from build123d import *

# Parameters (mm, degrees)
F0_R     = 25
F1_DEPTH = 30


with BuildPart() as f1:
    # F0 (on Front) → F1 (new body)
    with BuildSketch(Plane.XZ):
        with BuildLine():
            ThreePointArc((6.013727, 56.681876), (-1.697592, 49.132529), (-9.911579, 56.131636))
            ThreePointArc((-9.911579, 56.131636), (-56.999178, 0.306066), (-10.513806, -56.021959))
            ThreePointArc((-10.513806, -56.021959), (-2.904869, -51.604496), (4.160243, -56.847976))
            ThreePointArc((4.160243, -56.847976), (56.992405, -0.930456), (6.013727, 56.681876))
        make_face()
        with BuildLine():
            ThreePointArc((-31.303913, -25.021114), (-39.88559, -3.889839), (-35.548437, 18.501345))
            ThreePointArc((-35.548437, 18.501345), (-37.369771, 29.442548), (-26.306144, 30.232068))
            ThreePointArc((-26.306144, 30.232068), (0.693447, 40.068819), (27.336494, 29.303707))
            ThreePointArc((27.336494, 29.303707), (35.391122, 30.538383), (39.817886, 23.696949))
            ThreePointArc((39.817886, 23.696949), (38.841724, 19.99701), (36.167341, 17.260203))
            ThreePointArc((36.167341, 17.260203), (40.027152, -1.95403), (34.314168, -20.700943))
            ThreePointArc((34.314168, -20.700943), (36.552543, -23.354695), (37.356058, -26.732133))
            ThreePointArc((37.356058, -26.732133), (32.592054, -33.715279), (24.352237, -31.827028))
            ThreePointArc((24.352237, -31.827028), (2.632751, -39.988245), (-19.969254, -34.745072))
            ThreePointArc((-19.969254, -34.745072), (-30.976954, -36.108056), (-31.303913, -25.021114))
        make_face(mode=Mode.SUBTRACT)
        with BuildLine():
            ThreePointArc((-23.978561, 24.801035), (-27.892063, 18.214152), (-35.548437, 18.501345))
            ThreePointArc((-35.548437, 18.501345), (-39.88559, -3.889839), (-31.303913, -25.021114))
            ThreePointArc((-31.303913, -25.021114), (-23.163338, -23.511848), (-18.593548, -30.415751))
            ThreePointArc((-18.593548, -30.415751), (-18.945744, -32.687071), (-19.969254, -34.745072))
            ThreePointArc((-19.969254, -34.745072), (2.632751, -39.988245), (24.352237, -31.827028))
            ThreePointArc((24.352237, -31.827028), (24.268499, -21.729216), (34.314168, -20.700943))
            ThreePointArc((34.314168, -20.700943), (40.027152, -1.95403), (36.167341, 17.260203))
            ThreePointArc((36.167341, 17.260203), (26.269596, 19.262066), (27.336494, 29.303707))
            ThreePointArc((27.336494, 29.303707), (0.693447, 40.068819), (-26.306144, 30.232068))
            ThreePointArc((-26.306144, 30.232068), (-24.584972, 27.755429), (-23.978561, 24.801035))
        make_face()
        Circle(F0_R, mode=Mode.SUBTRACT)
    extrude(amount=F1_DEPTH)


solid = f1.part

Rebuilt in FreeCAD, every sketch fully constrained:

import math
import FreeCAD as App
import Part
import Sketcher

doc = App.newDocument("Part")
body = doc.addObject("PartDesign::Body", "Body")

sketch1 = body.newObject("Sketcher::SketchObject", "Sketch")
sketch1.AttachmentSupport = (doc.getObject("XZ_Plane"), [""])
sketch1.MapMode = "FlatFace"
sketch1.addGeometry(Part.ArcOfCircle(Part.Circle(App.Vector(-2, 57.1, 0), App.Vector(0, 0, 1), 8), math.radians(-173), math.radians(-3)), False)
sketch1.addGeometry(Part.ArcOfCircle(Part.Circle(App.Vector(0, 0, 0), App.Vector(0, 0, 1), 57), math.radians(100), math.radians(259)), False)
sketch1.addGeometry(Part.ArcOfCircle(Part.Circle(App.Vector(-3.4, -59.6, 0), App.Vector(0, 0, 1), 8), math.radians(20), math.radians(153)), False)
sketch1.addGeometry(Part.ArcOfCircle(Part.Circle(App.Vector(0, 0, 0), App.Vector(0, 0, 1), 57), math.radians(-86), math.radians(84)), False)
sketch1.addGeometry(Part.ArcOfCircle(Part.Circle(App.Vector(-26.1, -30.4, 0), App.Vector(0, 0, 1), 7.5), math.radians(134), math.radians(325)), False)
sketch1.addGeometry(Part.ArcOfCircle(Part.Circle(App.Vector(-26.1, -30.4, 0), App.Vector(0, 0, 1), 7.5), math.radians(0), math.radians(134)), False)
sketch1.addGeometry(Part.ArcOfCircle(Part.Circle(App.Vector(-26.1, -30.4, 0), App.Vector(0, 0, 1), 7.5), math.radians(-35), math.radians(0)), False)
sketch1.addGeometry(Part.ArcOfCircle(Part.Circle(App.Vector(29.9, -26.7, 0), App.Vector(0, 0, 1), 7.5), math.radians(-137), math.radians(0)), False)
sketch1.addGeometry(Part.ArcOfCircle(Part.Circle(App.Vector(29.9, -26.7, 0), App.Vector(0, 0, 1), 7.5), math.radians(54), math.radians(223)), False)
sketch1.addGeometry(Part.ArcOfCircle(Part.Circle(App.Vector(29.9, -26.7, 0), App.Vector(0, 0, 1), 7.5), math.radians(0), math.radians(54)), False)
sketch1.addGeometry(Part.Circle(App.Vector(0, 0, 0), App.Vector(0, 0, 1), 25), False)
sketch1.addGeometry(Part.ArcOfCircle(Part.Circle(App.Vector(-31.5, 24.8, 0), App.Vector(0, 0, 1), 7.5), math.radians(46), math.radians(237)), False)
sketch1.addGeometry(Part.ArcOfCircle(Part.Circle(App.Vector(-31.5, 24.8, 0), App.Vector(0, 0, 1), 7.5), math.radians(0), math.radians(46)), False)
sketch1.addGeometry(Part.ArcOfCircle(Part.Circle(App.Vector(-31.5, 24.8, 0), App.Vector(0, 0, 1), 7.5), math.radians(-123), math.radians(0)), False)
sketch1.addGeometry(Part.ArcOfCircle(Part.Circle(App.Vector(32.3, 23.7, 0), App.Vector(0, 0, 1), 7.5), math.radians(-59), math.radians(0)), False)
sketch1.addGeometry(Part.ArcOfCircle(Part.Circle(App.Vector(32.3, 23.7, 0), App.Vector(0, 0, 1), 7.5), math.radians(132), math.radians(301)), False)
sketch1.addGeometry(Part.ArcOfCircle(Part.Circle(App.Vector(32.3, 23.7, 0), App.Vector(0, 0, 1), 7.5), math.radians(0), math.radians(132)), False)
sketch1.addConstraint(Sketcher.Constraint("Coincident", 0, 1, 1, 1))
sketch1.addConstraint(Sketcher.Constraint("Coincident", 1, 2, 2, 2))
sketch1.addConstraint(Sketcher.Constraint("Coincident", 2, 1, 3, 1))
sketch1.addConstraint(Sketcher.Constraint("Coincident", 3, 2, 0, 2))
sketch1.addConstraint(Sketcher.Constraint("Tangent", 4, 1, 5, 2))
sketch1.addConstraint(Sketcher.Constraint("Tangent", 5, 1, 6, 2))
sketch1.addConstraint(Sketcher.Constraint("Tangent", 6, 1, 4, 2))
sketch1.addConstraint(Sketcher.Constraint("Tangent", 7, 1, 8, 2))
sketch1.addConstraint(Sketcher.Constraint("Tangent", 8, 1, 9, 2))
sketch1.addConstraint(Sketcher.Constraint("Tangent", 9, 1, 7, 2))
sketch1.addConstraint(Sketcher.Constraint("Tangent", 11, 1, 12, 2))
sketch1.addConstraint(Sketcher.Constraint("Tangent", 12, 1, 13, 2))
sketch1.addConstraint(Sketcher.Constraint("Tangent", 13, 1, 11, 2))
sketch1.addConstraint(Sketcher.Constraint("Tangent", 14, 1, 15, 2))
sketch1.addConstraint(Sketcher.Constraint("Tangent", 15, 1, 16, 2))
sketch1.addConstraint(Sketcher.Constraint("Tangent", 16, 1, 14, 2))
sketch1.addConstraint(Sketcher.Constraint("Coincident", 1, 3, -1, 1))
sketch1.addConstraint(Sketcher.Constraint("Coincident", 3, 3, -1, 1))
sketch1.addConstraint(Sketcher.Constraint("Coincident", 10, 3, -1, 1))
sketch1.addConstraint(Sketcher.Constraint("Equal", 0, 2))
sketch1.addConstraint(Sketcher.Constraint("Equal", 1, 3))
sketch1.addConstraint(Sketcher.Constraint("Equal", 5, 7))
sketch1.addConstraint(Sketcher.Constraint("Equal", 9, 11))
sketch1.addConstraint(Sketcher.Constraint("Equal", 12, 14))
sketch1.addConstraint(Sketcher.Constraint("Horizontal", 6, 3, 5, 1))
sketch1.addConstraint(Sketcher.Constraint("Horizontal", 8, 3, 9, 1))
sketch1.addConstraint(Sketcher.Constraint("Horizontal", 13, 3, 12, 1))
sketch1.addConstraint(Sketcher.Constraint("Horizontal", 15, 3, 16, 1))
sketch1.addConstraint(Sketcher.Constraint("Diameter", 10, 50.0))
sketch1.addConstraint(Sketcher.Constraint("Radius", 0, 8.0))
sketch1.addConstraint(Sketcher.Constraint("Radius", 1, 57.0))
sketch1.addConstraint(Sketcher.Constraint("Radius", 4, 7.5))
sketch1.addConstraint(Sketcher.Constraint("DistanceY", 2, 3, 4, 3, 29.176101))
sketch1.addConstraint(Sketcher.Constraint("DistanceY", 12, 3, 0, 1, 31.330598))
sketch1.addConstraint(Sketcher.Constraint("DistanceY", 2, 3, -1, 1, 59.591851))
sketch1.addConstraint(Sketcher.Constraint("DistanceX", 5, 3, -1, 1, 26.093548))
sketch1.addConstraint(Sketcher.Constraint("DistanceX", -1, 1, 7, 3, 29.856058))
sketch1.addConstraint(Sketcher.Constraint("DistanceX", 11, 3, -1, 1, 31.47856))
sketch1.addConstraint(Sketcher.Constraint("DistanceX", -1, 1, 14, 3, 32.31789))
sketch1.addConstraint(Sketcher.Constraint("DistanceY", -1, 1, 15, 3, 23.696949))
sketch1.addConstraint(Sketcher.Constraint("DistanceX", 0, 1, -1, 1, 9.911579))
sketch1.addConstraint(Sketcher.Constraint("DistanceY", 1, 2, -1, 1, 56.021959))
sketch1.addConstraint(Sketcher.Constraint("DistanceY", 6, 1, -1, 1, 34.745072))
sketch1.addConstraint(Sketcher.Constraint("DistanceY", 7, 1, -1, 1, 31.827028))
sketch1.addConstraint(Sketcher.Constraint("DistanceX", -1, 1, 14, 1, 36.167341))
sketch1.addConstraint(Sketcher.Constraint("DistanceY", 1, 3, 0, 3, 57.127758))
sketch1.addConstraint(Sketcher.Constraint("DistanceY", 2, 3, 9, 3, 32.859718))
sketch1.addConstraint(Sketcher.Constraint("DistanceX", 4, 1, 6, 1, 11.334659))
sketch1.addConstraint(Sketcher.Constraint("DistanceX", 9, 3, 8, 1, 4.45811))
sketch1.addConstraint(Sketcher.Constraint("DistanceY", 12, 3, 11, 1, 5.43103))
sketch1.addConstraint(Sketcher.Constraint("DistanceY", 13, 1, 13, 3, 6.29969))
sketch1.addConstraint(Sketcher.Constraint("DistanceX", 15, 1, 16, 3, 4.981392))
pad1 = body.newObject("PartDesign::Pad", "Pad")
pad1.Profile = sketch1
pad1.Length = 30

doc.recompute()
